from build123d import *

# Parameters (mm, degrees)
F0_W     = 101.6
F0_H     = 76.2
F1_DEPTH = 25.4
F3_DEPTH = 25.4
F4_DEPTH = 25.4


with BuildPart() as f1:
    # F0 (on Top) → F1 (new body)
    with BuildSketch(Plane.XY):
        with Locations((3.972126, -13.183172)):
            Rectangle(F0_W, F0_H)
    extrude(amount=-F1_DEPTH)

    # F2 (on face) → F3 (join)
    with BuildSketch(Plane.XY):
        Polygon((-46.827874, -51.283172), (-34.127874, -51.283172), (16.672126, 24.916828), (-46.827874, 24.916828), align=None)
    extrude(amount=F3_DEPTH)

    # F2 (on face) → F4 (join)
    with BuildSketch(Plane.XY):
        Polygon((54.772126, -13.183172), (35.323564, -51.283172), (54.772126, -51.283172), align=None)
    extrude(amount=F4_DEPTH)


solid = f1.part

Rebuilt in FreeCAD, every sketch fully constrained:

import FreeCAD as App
import Part
import Sketcher
from FreeCAD import Vector
Q = App.Units.Quantity

doc = App.newDocument("Part")
body = doc.addObject("PartDesign::Body", "Body")

sketch1 = body.newObject("Sketcher::SketchObject", "Sketch")
sketch1.AttachmentSupport = (doc.getObject("XY_Plane"), [""])
sketch1.MapMode = "FlatFace"
sketch1.addGeometry(Part.LineSegment(Vector(-47, 25, 0), Vector(-47, -51, 0)), False)
sketch1.addGeometry(Part.LineSegment(Vector(-47, -51, 0), Vector(55, -51, 0)), False)
sketch1.addGeometry(Part.LineSegment(Vector(55, -51, 0), Vector(55, 25, 0)), False)
sketch1.addGeometry(Part.LineSegment(Vector(55, 25, 0), Vector(-47, 25, 0)), False)
sketch1.addConstraint(Sketcher.Constraint("Coincident", 0, 2, 1, 1))
sketch1.addConstraint(Sketcher.Constraint("Coincident", 1, 2, 2, 1))
sketch1.addConstraint(Sketcher.Constraint("Coincident", 2, 2, 3, 1))
sketch1.addConstraint(Sketcher.Constraint("Coincident", 3, 2, 0, 1))
sketch1.addConstraint(Sketcher.Constraint("Vertical", 0))
sketch1.addConstraint(Sketcher.Constraint("Horizontal", 1))
sketch1.addConstraint(Sketcher.Constraint("Vertical", 2))
sketch1.addConstraint(Sketcher.Constraint("Horizontal", 3))
sketch1.addConstraint(Sketcher.Constraint("DistanceX", 1, 1, 1, 2, Q("4 in")))
sketch1.addConstraint(Sketcher.Constraint("DistanceY", 0, 2, 0, 1, Q("3 in")))
sketch1.addConstraint(Sketcher.Constraint("DistanceX", 0, 2, -1, 1, 46.827874))
sketch1.addConstraint(Sketcher.Constraint("DistanceY", 0, 2, -1, 1, 51.283172))
pad1 = body.newObject("PartDesign::Pad", "Pad")
pad1.Profile = sketch1
pad1.Length = Q("1 in")
pad1.Reversed = True

sketch2 = body.newObject("Sketcher::SketchObject", "Sketch001")
sketch2.AttachmentSupport = (doc.getObject("XY_Plane"), [""])
sketch2.MapMode = "FlatFace"
sketch2.addGeometry(Part.LineSegment(Vector(-47, -51, 0), Vector(-34, -51, 0)), False)
sketch2.addGeometry(Part.LineSegment(Vector(-34, -51, 0), Vector(17, 25, 0)), False)
sketch2.addGeometry(Part.LineSegment(Vector(17, 25, 0), Vector(-47, 25, 0)), False)
sketch2.addGeometry(Part.LineSegment(Vector(-47, 25, 0), Vector(-47, -51, 0)), False)
sketch2.addConstraint(Sketcher.Constraint("Coincident", 0, 2, 1, 1))
sketch2.addConstraint(Sketcher.Constraint("Coincident", 1, 2, 2, 1))
sketch2.addConstraint(Sketcher.Constraint("Coincident", 2, 2, 3, 1))
sketch2.addConstraint(Sketcher.Constraint("Coincident", 3, 2, 0, 1))
sketch2.addConstraint(Sketcher.Constraint("Horizontal", 0))
sketch2.addConstraint(Sketcher.Constraint("Horizontal", 2))
sketch2.addConstraint(Sketcher.Constraint("Vertical", 3))
sketch2.addConstraint(Sketcher.Constraint("DistanceY", 3, 2, 3, 1, Q("3 in")))
sketch2.addConstraint(Sketcher.Constraint("DistanceX", 0, 1, 0, 2, Q("0.5 in")))
sketch2.addConstraint(Sketcher.Constraint("DistanceX", 2, 2, 2, 1, Q("2.5 in")))
sketch2.addConstraint(Sketcher.Constraint("DistanceX", 0, 2, -1, 1, 34.127874))
sketch2.addConstraint(Sketcher.Constraint("DistanceY", 0, 2, -1, 1, 51.283172))
pad2 = body.newObject("PartDesign::Pad", "Pad001")
pad2.Profile = sketch2
pad2.Length = Q("1 in")

sketch3 = body.newObject("Sketcher::SketchObject", "Sketch002")
sketch3.AttachmentSupport = (doc.getObject("XY_Plane"), [""])
sketch3.MapMode = "FlatFace"
sketch3.addGeometry(Part.LineSegment(Vector(55, -13, 0), Vector(35, -51, 0)), False)
sketch3.addGeometry(Part.LineSegment(Vector(35, -51, 0), Vector(55, -51, 0)), False)
sketch3.addGeometry(Part.LineSegment(Vector(55, -51, 0), Vector(55, -13, 0)), False)
sketch3.addConstraint(Sketcher.Constraint("Coincident", 0, 2, 1, 1))
sketch3.addConstraint(Sketcher.Constraint("Coincident", 1, 2, 2, 1))
sketch3.addConstraint(Sketcher.Constraint("Coincident", 2, 2, 0, 1))
sketch3.addConstraint(Sketcher.Constraint("Horizontal", 1))
sketch3.addConstraint(Sketcher.Constraint("Vertical", 2))
sketch3.addConstraint(Sketcher.Constraint("DistanceY", 2, 1, 2, 2, Q("1.5 in")))
sketch3.addConstraint(Sketcher.Constraint("DistanceX", 1, 1, 1, 2, 19.448562))
sketch3.addConstraint(Sketcher.Constraint("DistanceX", -1, 1, 0, 2, 35.323564))
sketch3.addConstraint(Sketcher.Constraint("DistanceY", 0, 2, -1, 1, 51.283172))
pad3 = body.newObject("PartDesign::Pad", "Pad002")
pad3.Profile = sketch3
pad3.Length = Q("1 in")

doc.recompute()
